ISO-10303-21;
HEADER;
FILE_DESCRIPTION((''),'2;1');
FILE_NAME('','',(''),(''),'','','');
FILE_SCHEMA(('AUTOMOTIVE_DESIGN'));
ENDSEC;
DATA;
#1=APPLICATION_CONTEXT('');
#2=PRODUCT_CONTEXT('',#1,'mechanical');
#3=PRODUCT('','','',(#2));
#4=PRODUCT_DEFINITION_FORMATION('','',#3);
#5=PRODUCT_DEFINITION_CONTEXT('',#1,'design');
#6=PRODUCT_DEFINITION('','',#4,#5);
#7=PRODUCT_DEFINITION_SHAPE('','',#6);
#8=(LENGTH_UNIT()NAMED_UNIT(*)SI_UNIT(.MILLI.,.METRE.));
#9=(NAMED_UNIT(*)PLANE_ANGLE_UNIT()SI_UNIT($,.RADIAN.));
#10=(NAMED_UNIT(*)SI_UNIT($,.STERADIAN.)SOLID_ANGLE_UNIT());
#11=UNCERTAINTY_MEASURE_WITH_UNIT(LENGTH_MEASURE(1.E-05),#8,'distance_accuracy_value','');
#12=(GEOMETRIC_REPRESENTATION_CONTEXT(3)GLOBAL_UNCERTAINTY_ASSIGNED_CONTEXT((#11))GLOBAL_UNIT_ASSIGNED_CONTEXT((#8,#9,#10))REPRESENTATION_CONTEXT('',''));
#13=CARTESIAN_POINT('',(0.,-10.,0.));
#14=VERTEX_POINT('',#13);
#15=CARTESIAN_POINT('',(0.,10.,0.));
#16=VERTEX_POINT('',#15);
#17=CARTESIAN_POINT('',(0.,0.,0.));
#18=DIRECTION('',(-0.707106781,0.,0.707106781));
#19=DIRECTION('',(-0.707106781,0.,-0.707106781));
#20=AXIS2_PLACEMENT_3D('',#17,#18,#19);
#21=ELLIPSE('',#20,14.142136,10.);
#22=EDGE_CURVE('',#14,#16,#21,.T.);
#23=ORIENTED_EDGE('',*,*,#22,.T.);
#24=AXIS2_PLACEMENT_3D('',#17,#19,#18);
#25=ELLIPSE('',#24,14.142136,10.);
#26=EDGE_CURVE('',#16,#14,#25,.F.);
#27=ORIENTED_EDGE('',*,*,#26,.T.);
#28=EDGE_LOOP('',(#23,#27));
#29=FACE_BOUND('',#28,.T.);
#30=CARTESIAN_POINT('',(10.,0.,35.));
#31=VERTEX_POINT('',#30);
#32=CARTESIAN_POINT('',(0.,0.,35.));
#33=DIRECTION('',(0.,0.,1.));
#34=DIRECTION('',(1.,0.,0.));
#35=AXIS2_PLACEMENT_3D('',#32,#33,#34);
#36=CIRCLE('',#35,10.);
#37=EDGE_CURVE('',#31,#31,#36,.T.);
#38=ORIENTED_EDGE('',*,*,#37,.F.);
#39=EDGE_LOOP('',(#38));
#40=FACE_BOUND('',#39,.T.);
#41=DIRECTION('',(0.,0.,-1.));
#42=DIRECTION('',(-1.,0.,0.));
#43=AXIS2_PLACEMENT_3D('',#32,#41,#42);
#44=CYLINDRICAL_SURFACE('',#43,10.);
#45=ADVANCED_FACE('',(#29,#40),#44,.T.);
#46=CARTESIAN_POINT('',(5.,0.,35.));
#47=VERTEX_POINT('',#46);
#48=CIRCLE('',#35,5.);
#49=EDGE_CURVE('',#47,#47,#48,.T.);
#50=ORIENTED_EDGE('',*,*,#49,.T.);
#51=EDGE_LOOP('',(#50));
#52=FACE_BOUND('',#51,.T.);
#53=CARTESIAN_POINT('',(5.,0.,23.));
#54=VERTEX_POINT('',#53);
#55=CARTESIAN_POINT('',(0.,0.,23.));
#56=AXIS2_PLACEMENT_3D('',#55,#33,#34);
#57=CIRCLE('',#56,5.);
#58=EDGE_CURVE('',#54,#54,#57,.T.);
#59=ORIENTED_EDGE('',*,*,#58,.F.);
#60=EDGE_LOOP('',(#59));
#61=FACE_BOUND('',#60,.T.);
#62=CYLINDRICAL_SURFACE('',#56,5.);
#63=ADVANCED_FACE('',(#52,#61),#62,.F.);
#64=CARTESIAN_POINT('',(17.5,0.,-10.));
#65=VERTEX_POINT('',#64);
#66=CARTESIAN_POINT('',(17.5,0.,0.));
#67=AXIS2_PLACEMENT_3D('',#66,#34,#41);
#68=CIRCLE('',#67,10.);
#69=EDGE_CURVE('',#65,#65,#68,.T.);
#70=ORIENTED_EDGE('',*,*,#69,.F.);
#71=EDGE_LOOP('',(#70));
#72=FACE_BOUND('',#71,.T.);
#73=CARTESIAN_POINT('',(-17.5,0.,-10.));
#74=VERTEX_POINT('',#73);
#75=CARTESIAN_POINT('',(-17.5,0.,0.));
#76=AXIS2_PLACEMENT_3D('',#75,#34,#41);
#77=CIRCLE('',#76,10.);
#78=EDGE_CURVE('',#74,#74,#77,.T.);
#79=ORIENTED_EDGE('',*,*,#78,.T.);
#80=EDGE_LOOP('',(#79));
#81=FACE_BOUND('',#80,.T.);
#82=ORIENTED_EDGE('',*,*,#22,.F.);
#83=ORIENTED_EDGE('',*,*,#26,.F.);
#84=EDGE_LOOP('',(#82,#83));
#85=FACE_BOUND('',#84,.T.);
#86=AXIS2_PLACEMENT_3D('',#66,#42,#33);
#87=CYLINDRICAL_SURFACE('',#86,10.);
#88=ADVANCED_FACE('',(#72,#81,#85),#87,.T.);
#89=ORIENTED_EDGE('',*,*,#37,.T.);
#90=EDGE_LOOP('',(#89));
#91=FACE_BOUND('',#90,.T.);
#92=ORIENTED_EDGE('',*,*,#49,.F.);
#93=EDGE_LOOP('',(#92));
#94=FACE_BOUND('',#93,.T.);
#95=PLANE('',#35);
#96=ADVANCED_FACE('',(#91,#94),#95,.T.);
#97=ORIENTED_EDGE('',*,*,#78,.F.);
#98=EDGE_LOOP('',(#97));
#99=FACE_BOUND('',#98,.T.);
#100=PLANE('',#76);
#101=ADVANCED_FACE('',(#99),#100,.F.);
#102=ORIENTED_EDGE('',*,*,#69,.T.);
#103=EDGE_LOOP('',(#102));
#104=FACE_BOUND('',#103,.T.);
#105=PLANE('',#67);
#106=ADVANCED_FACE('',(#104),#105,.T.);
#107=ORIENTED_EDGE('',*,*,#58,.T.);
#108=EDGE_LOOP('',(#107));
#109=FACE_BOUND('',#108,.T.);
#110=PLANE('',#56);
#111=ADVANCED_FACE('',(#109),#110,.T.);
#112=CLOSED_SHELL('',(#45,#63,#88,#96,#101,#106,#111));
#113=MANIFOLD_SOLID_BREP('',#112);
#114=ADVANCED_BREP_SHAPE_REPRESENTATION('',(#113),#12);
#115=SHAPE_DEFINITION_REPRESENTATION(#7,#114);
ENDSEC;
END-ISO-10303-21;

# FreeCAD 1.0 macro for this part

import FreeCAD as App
import Part
import Sketcher

V = App.Vector

doc = App.newDocument("Part")
params = doc.addObject("Spreadsheet::Sheet", "Params")
for row, (alias, value) in enumerate([
    ("sketch1_diameter", "20 mm"),
    ("pad1_length", "35 mm"),
    ("sketch2_diameter", "20 mm"),
    ("pad2_length", "35 mm"),
    ("sketch3_diameter", "10 mm"),
    ("pocket1_length", "12 mm"),
], start=1):
    params.set(f"A{row}", alias)
    params.set(f"B{row}", "=" + value)
    params.setAlias(f"B{row}", alias)

body = doc.addObject("PartDesign::Body", "Body")

sketch1 = body.newObject("Sketcher::SketchObject", "Sketch")
sketch1.AttachmentSupport = (doc.getObject("YZ_Plane"), [""])
sketch1.MapMode = "FlatFace"
sketch1.addGeometry(Part.Circle(V(0, 0, 0), V(0, 0, 1), 10), False)
sketch1.addConstraint(Sketcher.Constraint("Coincident", 0, 3, -1, 1))
sketch1.addConstraint(Sketcher.Constraint("Diameter", 0, 20.0))
sketch1.setExpression("Constraints[1]", "Params.sketch1_diameter")
pad1 = body.newObject("PartDesign::Pad", "Pad")
pad1.Profile = sketch1
pad1.setExpression("Length", "Params.pad1_length")
pad1.Midplane = True

sketch2 = body.newObject("Sketcher::SketchObject", "Sketch001")
sketch2.AttachmentSupport = (doc.getObject("XY_Plane"), [""])
sketch2.MapMode = "FlatFace"
sketch2.addGeometry(Part.Circle(V(0, 0, 0), V(0, 0, 1), 10), False)
sketch2.addConstraint(Sketcher.Constraint("Coincident", 0, 3, -1, 1))
sketch2.addConstraint(Sketcher.Constraint("Diameter", 0, 20.0))
sketch2.setExpression("Constraints[1]", "Params.sketch2_diameter")
pad2 = body.newObject("PartDesign::Pad", "Pad001")
pad2.Profile = sketch2
pad2.setExpression("Length", "Params.pad2_length")

sketch3 = body.newObject("Sketcher::SketchObject", "Sketch002")
sketch3.AttachmentSupport = (doc.getObject("XY_Plane"), [""])
sketch3.MapMode = "FlatFace"
sketch3.AttachmentOffset = App.Placement(V(0, 0, 35), App.Rotation())
sketch3.addGeometry(Part.Circle(V(0, 0, 0), V(0, 0, 1), 5), False)
sketch3.addConstraint(Sketcher.Constraint("Coincident", 0, 3, -1, 1))
sketch3.addConstraint(Sketcher.Constraint("Diameter", 0, 10.0))
sketch3.setExpression("Constraints[1]", "Params.sketch3_diameter")
pocket1 = body.newObject("PartDesign::Pocket", "Pocket")
pocket1.Profile = sketch3
pocket1.setExpression("Length", "Params.pocket1_length")

doc.recompute()
